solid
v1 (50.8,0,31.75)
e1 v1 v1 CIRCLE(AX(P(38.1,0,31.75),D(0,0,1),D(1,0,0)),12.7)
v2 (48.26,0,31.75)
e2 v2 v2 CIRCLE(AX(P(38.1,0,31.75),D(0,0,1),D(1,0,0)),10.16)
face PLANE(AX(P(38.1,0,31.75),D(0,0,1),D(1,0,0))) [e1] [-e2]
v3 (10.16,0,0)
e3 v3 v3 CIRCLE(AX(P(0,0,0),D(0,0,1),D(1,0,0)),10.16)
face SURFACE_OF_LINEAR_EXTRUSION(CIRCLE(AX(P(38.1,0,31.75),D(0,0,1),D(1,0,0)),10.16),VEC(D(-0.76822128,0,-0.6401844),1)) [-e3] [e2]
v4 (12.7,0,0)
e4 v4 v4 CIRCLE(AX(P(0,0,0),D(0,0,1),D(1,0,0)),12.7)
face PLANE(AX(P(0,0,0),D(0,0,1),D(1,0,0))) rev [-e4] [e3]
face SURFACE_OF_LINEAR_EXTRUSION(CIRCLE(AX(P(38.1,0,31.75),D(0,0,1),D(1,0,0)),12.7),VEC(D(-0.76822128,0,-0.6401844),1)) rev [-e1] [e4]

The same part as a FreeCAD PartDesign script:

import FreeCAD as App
import Part
import Sketcher

V = App.Vector
Q = App.Units.Quantity

doc = App.newDocument("Part")
body = doc.addObject("PartDesign::Body", "Body")

# Sketch on XY plane
sketch1 = body.newObject("Sketcher::SketchObject", "Sketch")
sketch1.AttachmentSupport = (doc.getObject("XY_Plane"), [""])
sketch1.MapMode = "FlatFace"
sketch1.addGeometry(Part.Circle(V(0, 0, 0), V(0, 0, 1), 13), False)
sketch1.addGeometry(Part.Circle(V(0, 0, 0), V(0, 0, 1), 10), False)
sketch1.addConstraint(Sketcher.Constraint("Coincident", 0, 3, -1, 1))
sketch1.addConstraint(Sketcher.Constraint("Coincident", 1, 3, -1, 1))
sketch1.addConstraint(Sketcher.Constraint("Diameter", 0, Q("1 in")))
sketch1.addConstraint(Sketcher.Constraint("Diameter", 1, Q("0.8 in")))

# Sketch on an angled plane
sketch2 = body.newObject("Sketcher::SketchObject", "Sketch001")
sketch2.Placement = App.Placement(V(0, 0, 0), App.Rotation(V(0.76822128, 0, 0.6401844), V(0, 1.000000001, 0), V(-0.6401844, 0, 0.76822128), "ZXY"))
sketch2.addGeometry(Part.LineSegment(V(0, 0, 0), V(50, 0, 0)), False)
sketch2.addConstraint(Sketcher.Constraint("Horizontal", 0))
sketch2.addConstraint(Sketcher.Constraint("Coincident", 0, 1, -1, 1))
sketch2.addConstraint(Sketcher.Constraint("DistanceX", 0, 1, 0, 2, Q("49.595085 mm")))
doc.recompute()

additivepipe = body.newObject("PartDesign::AdditivePipe", "AdditivePipe")
additivepipe.Profile = sketch1
additivepipe.Spine = (sketch2, ["Edge1"])

doc.recompute()
